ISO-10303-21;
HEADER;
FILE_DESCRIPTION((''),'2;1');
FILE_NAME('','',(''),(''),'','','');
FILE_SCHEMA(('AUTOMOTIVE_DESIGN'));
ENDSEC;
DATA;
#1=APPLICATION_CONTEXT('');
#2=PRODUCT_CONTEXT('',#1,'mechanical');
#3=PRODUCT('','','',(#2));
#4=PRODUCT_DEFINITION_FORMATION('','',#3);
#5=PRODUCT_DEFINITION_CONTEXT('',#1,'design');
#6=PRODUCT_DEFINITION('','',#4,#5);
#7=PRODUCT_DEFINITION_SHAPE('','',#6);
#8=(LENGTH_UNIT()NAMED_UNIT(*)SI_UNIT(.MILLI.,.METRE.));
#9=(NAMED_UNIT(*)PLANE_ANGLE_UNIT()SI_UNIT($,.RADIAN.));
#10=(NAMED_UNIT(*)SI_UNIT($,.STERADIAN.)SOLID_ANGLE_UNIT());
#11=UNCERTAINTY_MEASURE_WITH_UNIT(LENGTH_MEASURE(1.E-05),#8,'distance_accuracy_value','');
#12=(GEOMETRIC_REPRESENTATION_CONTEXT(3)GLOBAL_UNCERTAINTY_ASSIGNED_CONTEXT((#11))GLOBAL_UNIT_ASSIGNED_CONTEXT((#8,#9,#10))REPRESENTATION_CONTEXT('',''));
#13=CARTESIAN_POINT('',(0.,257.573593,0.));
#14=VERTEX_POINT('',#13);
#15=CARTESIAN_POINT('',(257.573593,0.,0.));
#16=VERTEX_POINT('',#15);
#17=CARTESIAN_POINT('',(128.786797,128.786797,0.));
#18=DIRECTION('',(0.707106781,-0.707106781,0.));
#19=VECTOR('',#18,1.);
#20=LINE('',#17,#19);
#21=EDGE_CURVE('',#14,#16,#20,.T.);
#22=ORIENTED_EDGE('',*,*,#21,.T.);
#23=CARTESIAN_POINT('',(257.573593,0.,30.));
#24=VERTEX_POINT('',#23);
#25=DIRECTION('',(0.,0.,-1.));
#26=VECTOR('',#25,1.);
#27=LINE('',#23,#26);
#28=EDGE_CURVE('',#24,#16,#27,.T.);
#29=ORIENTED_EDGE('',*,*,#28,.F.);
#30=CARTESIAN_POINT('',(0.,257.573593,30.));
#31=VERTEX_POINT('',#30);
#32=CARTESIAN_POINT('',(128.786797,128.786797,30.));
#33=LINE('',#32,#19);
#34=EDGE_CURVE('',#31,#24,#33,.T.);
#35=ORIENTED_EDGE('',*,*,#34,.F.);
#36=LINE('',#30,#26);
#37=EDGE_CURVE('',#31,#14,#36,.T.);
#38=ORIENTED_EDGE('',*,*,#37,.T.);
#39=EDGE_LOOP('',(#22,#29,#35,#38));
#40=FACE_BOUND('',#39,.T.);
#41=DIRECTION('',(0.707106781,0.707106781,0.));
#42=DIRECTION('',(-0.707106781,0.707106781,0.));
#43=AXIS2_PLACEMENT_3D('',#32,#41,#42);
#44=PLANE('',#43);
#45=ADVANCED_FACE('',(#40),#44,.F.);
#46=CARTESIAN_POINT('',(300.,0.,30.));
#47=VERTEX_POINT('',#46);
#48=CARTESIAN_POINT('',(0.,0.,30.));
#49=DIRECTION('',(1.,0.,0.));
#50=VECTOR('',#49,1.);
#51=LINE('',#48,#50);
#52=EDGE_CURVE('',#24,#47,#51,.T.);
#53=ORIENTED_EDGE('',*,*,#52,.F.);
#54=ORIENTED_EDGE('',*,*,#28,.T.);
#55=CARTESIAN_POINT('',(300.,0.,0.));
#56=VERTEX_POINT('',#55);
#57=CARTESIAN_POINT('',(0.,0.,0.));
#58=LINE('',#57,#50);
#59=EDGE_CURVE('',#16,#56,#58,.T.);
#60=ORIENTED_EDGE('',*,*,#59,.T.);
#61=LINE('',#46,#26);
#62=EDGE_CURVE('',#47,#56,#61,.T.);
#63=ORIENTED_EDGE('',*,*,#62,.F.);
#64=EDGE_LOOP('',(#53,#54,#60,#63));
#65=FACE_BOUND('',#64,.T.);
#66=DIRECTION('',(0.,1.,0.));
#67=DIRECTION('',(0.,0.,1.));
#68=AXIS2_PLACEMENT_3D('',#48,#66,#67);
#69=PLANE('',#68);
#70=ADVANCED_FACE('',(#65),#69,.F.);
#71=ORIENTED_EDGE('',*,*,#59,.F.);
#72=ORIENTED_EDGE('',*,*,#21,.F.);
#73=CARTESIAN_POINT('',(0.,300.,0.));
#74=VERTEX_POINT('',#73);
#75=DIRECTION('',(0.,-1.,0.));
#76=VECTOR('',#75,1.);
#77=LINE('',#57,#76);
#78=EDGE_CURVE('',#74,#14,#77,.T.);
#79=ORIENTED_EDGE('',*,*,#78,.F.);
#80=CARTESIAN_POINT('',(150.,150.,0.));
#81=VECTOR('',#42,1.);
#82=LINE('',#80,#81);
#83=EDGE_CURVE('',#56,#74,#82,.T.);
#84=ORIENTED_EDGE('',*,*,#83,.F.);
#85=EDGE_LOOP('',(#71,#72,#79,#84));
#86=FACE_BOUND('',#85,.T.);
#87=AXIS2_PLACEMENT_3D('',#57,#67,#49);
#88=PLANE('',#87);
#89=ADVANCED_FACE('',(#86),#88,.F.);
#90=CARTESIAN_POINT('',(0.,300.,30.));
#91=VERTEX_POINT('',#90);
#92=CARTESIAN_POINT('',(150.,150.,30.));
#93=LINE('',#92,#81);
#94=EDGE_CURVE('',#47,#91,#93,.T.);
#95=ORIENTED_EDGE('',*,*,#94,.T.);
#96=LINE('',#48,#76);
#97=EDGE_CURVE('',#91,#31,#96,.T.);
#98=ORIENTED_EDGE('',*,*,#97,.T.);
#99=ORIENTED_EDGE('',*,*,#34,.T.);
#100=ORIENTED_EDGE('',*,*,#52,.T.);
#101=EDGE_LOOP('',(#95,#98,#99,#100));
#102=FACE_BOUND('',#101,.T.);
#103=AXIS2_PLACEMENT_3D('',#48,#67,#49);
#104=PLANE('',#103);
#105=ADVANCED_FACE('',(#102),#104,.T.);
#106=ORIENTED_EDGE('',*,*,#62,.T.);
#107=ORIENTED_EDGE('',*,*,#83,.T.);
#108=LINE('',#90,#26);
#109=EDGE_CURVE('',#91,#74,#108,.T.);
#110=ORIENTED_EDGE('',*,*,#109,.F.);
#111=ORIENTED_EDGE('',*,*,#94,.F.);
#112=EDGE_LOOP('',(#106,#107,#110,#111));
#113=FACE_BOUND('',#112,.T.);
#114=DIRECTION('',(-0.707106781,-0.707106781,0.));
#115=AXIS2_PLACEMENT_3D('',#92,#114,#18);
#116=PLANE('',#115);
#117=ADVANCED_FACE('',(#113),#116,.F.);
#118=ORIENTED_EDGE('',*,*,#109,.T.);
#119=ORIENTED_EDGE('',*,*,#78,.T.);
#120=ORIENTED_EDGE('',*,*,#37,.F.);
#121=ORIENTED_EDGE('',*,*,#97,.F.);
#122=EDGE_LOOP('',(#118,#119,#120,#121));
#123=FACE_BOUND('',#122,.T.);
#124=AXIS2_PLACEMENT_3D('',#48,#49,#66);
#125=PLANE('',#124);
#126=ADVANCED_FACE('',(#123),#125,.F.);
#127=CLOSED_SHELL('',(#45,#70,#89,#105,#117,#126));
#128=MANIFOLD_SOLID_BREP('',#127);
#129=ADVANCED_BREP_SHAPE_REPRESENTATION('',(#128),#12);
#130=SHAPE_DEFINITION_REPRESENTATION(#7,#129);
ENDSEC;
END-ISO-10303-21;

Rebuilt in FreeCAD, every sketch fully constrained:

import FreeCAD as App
import Part
import Sketcher

V = App.Vector
Q = App.Units.Quantity


def add_polygon(sketch, points):
    """Adds a closed chain of lines whose ends are joined by coincident constraints."""
    first, n = sketch.GeometryCount, len(points)
    for a, b in zip(points, points[1:] + points[:1]):
        sketch.addGeometry(Part.LineSegment(App.Vector(*a, 0), App.Vector(*b, 0)), False)
    for i in range(n):
        sketch.addConstraint(Sketcher.Constraint("Coincident", first + i, 2, first + (i + 1) % n, 1))

doc = App.newDocument("Part")
body = doc.addObject("PartDesign::Body", "Body")

# Sketch on XY plane
sketch1 = body.newObject("Sketcher::SketchObject", "Sketch")
sketch1.AttachmentSupport = (doc.getObject("XY_Plane"), [""])
sketch1.MapMode = "FlatFace"
add_polygon(sketch1, [(300, 0), (0, 300), (0, 258), (258, 0)])  # lines 0-3
sketch1.addConstraint(Sketcher.Constraint("Vertical", 1))
sketch1.addConstraint(Sketcher.Constraint("Horizontal", 3))
sketch1.addConstraint(Sketcher.Constraint("PointOnObject", 0, 2, -2))
sketch1.addConstraint(Sketcher.Constraint("PointOnObject", 2, 2, -1))
sketch1.addConstraint(Sketcher.Constraint("Parallel", 0, 2))
sketch1.addConstraint(Sketcher.Constraint("Equal", 3, 1))
sketch1.addConstraint(Sketcher.Constraint("DistanceY", -1, 1, 0, 2, Q("300 mm")))
sketch1.addConstraint(Sketcher.Constraint("Distance", 2, Q("364.264069 mm")))
pad1 = body.newObject("PartDesign::Pad", "Pad")
pad1.Profile = sketch1
pad1.Length = 30

doc.recompute()
